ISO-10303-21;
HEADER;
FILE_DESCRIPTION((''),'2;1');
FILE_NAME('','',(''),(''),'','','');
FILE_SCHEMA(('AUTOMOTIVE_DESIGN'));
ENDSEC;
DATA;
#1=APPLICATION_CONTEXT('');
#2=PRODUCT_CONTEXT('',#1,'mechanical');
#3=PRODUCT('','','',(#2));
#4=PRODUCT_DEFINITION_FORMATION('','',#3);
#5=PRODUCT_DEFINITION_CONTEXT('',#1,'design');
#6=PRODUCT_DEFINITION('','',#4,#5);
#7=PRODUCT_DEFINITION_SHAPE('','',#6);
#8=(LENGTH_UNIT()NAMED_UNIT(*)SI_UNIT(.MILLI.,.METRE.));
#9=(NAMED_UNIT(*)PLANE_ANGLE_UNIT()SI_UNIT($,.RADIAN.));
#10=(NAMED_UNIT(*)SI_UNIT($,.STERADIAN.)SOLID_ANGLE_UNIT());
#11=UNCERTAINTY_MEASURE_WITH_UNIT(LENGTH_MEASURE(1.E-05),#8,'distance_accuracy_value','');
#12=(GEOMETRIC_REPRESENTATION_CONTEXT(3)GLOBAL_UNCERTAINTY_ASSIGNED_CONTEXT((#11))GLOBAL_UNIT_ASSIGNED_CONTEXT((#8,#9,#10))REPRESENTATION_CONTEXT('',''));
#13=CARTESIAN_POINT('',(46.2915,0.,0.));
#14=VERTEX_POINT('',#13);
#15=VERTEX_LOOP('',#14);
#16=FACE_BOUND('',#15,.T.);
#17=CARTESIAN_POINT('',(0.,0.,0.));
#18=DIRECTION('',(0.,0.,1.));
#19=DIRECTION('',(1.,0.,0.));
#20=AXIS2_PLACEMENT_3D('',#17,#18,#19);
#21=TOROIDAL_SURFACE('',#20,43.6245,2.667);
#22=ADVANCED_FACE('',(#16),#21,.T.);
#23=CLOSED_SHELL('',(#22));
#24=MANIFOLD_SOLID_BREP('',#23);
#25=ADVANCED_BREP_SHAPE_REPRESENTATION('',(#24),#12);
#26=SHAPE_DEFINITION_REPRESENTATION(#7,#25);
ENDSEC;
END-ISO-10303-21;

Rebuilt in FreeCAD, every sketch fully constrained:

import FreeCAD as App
import Part
import Sketcher
from FreeCAD import Vector
Q = App.Units.Quantity

doc = App.newDocument("Part")
params = doc.addObject("Spreadsheet::Sheet", "Params")
for row, (alias, value) in enumerate([
    ("sketch1_diameter", "0.21 in"),
    ("revolution_angle", "360 deg"),
], start=1):
    params.set(f"A{row}", alias)
    params.set(f"B{row}", "=" + value)
    params.setAlias(f"B{row}", alias)

body = doc.addObject("PartDesign::Body", "Body")

# Sketch on YZ plane
sketch1 = body.newObject("Sketcher::SketchObject", "Sketch")
sketch1.AttachmentSupport = (doc.getObject("YZ_Plane"), [""])
sketch1.MapMode = "FlatFace"
sketch1.addGeometry(Part.Circle(Vector(-43.6, 0, 0), Vector(0, 0, 1), 2.7), False)
sketch1.addConstraint(Sketcher.Constraint("PointOnObject", 0, 3, -1))
sketch1.addConstraint(Sketcher.Constraint("Diameter", 0, Q("0.21 in")))
sketch1.addConstraint(Sketcher.Constraint("DistanceX", 0, 3, -1, 1, Q("1.7175 in")))
sketch1.setExpression("Constraints[1]", "Params.sketch1_diameter")
revolution = body.newObject("PartDesign::Revolution", "Revolution")
revolution.Profile = sketch1
revolution.ReferenceAxis = (sketch1, ["V_Axis"])
revolution.setExpression("Angle", "Params.revolution_angle")

doc.recompute()
